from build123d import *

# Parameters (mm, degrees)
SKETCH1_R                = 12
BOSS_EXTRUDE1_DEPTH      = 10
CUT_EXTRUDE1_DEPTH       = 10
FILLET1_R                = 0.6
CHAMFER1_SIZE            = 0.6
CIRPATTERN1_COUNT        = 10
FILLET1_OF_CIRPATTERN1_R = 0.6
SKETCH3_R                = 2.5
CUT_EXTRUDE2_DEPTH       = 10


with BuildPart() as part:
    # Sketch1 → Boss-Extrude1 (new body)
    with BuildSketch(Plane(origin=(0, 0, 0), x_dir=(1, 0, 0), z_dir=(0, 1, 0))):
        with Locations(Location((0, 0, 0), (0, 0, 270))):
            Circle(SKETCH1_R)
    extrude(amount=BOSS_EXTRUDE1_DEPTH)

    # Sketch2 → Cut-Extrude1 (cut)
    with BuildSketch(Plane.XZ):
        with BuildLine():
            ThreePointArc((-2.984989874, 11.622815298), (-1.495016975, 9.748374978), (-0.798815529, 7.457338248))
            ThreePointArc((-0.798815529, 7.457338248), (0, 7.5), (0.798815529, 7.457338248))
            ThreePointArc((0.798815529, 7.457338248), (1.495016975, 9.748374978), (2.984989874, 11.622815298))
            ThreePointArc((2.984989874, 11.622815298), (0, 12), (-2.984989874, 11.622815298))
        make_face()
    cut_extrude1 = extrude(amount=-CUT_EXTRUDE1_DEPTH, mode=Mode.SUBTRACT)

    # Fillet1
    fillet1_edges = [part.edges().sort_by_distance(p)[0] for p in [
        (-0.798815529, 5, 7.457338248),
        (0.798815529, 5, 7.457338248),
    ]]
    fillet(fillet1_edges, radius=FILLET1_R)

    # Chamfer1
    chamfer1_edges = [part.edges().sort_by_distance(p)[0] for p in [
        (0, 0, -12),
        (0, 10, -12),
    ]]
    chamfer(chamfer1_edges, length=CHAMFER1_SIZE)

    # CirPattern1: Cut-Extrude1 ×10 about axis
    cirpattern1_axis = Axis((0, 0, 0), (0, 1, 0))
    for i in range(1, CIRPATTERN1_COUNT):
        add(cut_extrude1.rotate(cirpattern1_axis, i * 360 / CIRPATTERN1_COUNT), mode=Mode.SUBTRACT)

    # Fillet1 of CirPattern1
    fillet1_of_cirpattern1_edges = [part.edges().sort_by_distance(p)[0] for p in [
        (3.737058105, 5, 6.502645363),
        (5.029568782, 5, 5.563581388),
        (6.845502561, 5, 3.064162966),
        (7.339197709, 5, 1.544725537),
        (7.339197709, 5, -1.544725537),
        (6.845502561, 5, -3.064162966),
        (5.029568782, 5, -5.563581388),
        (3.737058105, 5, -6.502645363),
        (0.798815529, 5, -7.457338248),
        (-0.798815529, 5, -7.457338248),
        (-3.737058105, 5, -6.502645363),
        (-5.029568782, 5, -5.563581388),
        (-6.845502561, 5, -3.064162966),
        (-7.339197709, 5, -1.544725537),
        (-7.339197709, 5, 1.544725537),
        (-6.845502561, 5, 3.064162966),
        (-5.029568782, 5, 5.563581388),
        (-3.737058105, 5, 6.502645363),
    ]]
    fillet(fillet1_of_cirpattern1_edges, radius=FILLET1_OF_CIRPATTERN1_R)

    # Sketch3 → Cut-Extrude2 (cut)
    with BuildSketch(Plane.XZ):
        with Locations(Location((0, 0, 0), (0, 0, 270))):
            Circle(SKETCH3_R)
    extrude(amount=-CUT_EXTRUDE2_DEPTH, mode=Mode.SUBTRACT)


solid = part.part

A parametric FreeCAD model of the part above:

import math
import FreeCAD as App
import Part
import Sketcher

V = App.Vector


def edges_at(feature, points):
    """Names of the edges that pass closest to the given points."""
    edges = feature.Shape.Edges
    near = lambda p: min(range(len(edges)), key=lambda i: edges[i].distToShape(Part.Vertex(*p))[0])
    return sorted({f"Edge{near(p) + 1}" for p in points})

doc = App.newDocument("Part")
body = doc.addObject("PartDesign::Body", "Body")

sketch1 = body.newObject("Sketcher::SketchObject", "Sketch")
sketch1.AttachmentSupport = (doc.getObject("XZ_Plane"), [""])
sketch1.MapMode = "FlatFace"
sketch1.addGeometry(Part.Circle(V(0, 0, 0), V(0, 0, 1), 12), False)
sketch1.addConstraint(Sketcher.Constraint("Coincident", 0, 3, -1, 1))
sketch1.addConstraint(Sketcher.Constraint("Diameter", 0, 24.0))
pad1 = body.newObject("PartDesign::Pad", "Pad")
pad1.Profile = sketch1
pad1.Length = 10
pad1.Reversed = True

sketch2 = body.newObject("Sketcher::SketchObject", "Sketch001")
sketch2.AttachmentSupport = (doc.getObject("XZ_Plane"), [""])
sketch2.MapMode = "FlatFace"
sketch2.addGeometry(Part.ArcOfCircle(Part.Circle(V(-7.158257, 6.776127, 0), V(0, 0, 1), 6.395822), math.radians(6.114098), math.radians(49.269726)), False)
sketch2.addGeometry(Part.ArcOfCircle(Part.Circle(V(0, 0, 0), V(0, 0, 1), 7.5), math.radians(83.885902), math.radians(96.114098)), False)
sketch2.addGeometry(Part.ArcOfCircle(Part.Circle(V(7.158257, 6.776127, 0), V(0, 0, 1), 6.395822), math.radians(130.730274), math.radians(173.885902)), False)
sketch2.addGeometry(Part.ArcOfCircle(Part.Circle(V(0, 0, 0), V(0, 0, 1), 12), math.radians(75.596494), math.radians(104.403506)), False)
sketch2.addConstraint(Sketcher.Constraint("Coincident", 0, 1, 1, 2))
sketch2.addConstraint(Sketcher.Constraint("Coincident", 1, 1, 2, 2))
sketch2.addConstraint(Sketcher.Constraint("Coincident", 2, 1, 3, 1))
sketch2.addConstraint(Sketcher.Constraint("Coincident", 3, 2, 0, 2))
sketch2.addConstraint(Sketcher.Constraint("Coincident", 1, 3, -1, 1))
sketch2.addConstraint(Sketcher.Constraint("Coincident", 3, 3, -1, 1))
sketch2.addConstraint(Sketcher.Constraint("Equal", 0, 2))
sketch2.addConstraint(Sketcher.Constraint("Symmetric", 0, 3, 2, 3, -2))
sketch2.addConstraint(Sketcher.Constraint("Radius", 3, 12.0))
sketch2.addConstraint(Sketcher.Constraint("Radius", 1, 7.5))
sketch2.addConstraint(Sketcher.Constraint("Radius", 0, 6.395822))
sketch2.addConstraint(Sketcher.Constraint("DistanceY", -1, 1, 0, 1, 7.457338))
sketch2.addConstraint(Sketcher.Constraint("DistanceX", -1, 1, 2, 1, 2.98499))
pocket1 = body.newObject("PartDesign::Pocket", "Pocket")
pocket1.Profile = sketch2
pocket1.Length = 10
doc.recompute()

fillet = body.newObject("PartDesign::Fillet", "Fillet")
fillet.Base = (pocket1, edges_at(pocket1, [(-0.799, 5, 7.457), (0.799, 5, 7.457)]))
fillet.Radius = 0.6
doc.recompute()

chamfer = body.newObject("PartDesign::Chamfer", "Chamfer")
chamfer.Base = (fillet, edges_at(fillet, [(0, 0, -12), (0, 10, -12)]))
chamfer.Size = 0.6
doc.recompute()

polarpattern = body.newObject("PartDesign::PolarPattern", "PolarPattern")
polarpattern.Originals = [pocket1]
polarpattern.Axis = (doc.getObject("Y_Axis"), [""])
polarpattern.Angle = 360
polarpattern.Occurrences = 10
body.Tip = polarpattern
doc.recompute()

fillet2 = body.newObject("PartDesign::Fillet", "Fillet001")
fillet2.Base = (polarpattern, edges_at(polarpattern, [
    (3.737, 5, 6.503),
    (5.03, 5, 5.564),
    (6.846, 5, 3.064),
    (7.339, 5, 1.545),
    (7.339, 5, -1.545),
    (6.846, 5, -3.064),
    (5.03, 5, -5.564),
    (3.737, 5, -6.503),
    (0.799, 5, -7.457),
    (-0.799, 5, -7.457),
    (-3.737, 5, -6.503),
    (-5.03, 5, -5.564),
    (-6.846, 5, -3.064),
    (-7.339, 5, -1.545),
    (-7.339, 5, 1.545),
    (-6.846, 5, 3.064),
    (-5.03, 5, 5.564),
    (-3.737, 5, 6.503),
]))
fillet2.Radius = 0.6

sketch3 = body.newObject("Sketcher::SketchObject", "Sketch002")
sketch3.AttachmentSupport = (doc.getObject("XZ_Plane"), [""])
sketch3.MapMode = "FlatFace"
sketch3.addGeometry(Part.Circle(V(0, 0, 0), V(0, 0, 1), 2.5), False)
sketch3.addConstraint(Sketcher.Constraint("Coincident", 0, 3, -1, 1))
sketch3.addConstraint(Sketcher.Constraint("Diameter", 0, 5.0))
pocket2 = body.newObject("PartDesign::Pocket", "Pocket001")
pocket2.Profile = sketch3
pocket2.Length = 10

doc.recompute()
